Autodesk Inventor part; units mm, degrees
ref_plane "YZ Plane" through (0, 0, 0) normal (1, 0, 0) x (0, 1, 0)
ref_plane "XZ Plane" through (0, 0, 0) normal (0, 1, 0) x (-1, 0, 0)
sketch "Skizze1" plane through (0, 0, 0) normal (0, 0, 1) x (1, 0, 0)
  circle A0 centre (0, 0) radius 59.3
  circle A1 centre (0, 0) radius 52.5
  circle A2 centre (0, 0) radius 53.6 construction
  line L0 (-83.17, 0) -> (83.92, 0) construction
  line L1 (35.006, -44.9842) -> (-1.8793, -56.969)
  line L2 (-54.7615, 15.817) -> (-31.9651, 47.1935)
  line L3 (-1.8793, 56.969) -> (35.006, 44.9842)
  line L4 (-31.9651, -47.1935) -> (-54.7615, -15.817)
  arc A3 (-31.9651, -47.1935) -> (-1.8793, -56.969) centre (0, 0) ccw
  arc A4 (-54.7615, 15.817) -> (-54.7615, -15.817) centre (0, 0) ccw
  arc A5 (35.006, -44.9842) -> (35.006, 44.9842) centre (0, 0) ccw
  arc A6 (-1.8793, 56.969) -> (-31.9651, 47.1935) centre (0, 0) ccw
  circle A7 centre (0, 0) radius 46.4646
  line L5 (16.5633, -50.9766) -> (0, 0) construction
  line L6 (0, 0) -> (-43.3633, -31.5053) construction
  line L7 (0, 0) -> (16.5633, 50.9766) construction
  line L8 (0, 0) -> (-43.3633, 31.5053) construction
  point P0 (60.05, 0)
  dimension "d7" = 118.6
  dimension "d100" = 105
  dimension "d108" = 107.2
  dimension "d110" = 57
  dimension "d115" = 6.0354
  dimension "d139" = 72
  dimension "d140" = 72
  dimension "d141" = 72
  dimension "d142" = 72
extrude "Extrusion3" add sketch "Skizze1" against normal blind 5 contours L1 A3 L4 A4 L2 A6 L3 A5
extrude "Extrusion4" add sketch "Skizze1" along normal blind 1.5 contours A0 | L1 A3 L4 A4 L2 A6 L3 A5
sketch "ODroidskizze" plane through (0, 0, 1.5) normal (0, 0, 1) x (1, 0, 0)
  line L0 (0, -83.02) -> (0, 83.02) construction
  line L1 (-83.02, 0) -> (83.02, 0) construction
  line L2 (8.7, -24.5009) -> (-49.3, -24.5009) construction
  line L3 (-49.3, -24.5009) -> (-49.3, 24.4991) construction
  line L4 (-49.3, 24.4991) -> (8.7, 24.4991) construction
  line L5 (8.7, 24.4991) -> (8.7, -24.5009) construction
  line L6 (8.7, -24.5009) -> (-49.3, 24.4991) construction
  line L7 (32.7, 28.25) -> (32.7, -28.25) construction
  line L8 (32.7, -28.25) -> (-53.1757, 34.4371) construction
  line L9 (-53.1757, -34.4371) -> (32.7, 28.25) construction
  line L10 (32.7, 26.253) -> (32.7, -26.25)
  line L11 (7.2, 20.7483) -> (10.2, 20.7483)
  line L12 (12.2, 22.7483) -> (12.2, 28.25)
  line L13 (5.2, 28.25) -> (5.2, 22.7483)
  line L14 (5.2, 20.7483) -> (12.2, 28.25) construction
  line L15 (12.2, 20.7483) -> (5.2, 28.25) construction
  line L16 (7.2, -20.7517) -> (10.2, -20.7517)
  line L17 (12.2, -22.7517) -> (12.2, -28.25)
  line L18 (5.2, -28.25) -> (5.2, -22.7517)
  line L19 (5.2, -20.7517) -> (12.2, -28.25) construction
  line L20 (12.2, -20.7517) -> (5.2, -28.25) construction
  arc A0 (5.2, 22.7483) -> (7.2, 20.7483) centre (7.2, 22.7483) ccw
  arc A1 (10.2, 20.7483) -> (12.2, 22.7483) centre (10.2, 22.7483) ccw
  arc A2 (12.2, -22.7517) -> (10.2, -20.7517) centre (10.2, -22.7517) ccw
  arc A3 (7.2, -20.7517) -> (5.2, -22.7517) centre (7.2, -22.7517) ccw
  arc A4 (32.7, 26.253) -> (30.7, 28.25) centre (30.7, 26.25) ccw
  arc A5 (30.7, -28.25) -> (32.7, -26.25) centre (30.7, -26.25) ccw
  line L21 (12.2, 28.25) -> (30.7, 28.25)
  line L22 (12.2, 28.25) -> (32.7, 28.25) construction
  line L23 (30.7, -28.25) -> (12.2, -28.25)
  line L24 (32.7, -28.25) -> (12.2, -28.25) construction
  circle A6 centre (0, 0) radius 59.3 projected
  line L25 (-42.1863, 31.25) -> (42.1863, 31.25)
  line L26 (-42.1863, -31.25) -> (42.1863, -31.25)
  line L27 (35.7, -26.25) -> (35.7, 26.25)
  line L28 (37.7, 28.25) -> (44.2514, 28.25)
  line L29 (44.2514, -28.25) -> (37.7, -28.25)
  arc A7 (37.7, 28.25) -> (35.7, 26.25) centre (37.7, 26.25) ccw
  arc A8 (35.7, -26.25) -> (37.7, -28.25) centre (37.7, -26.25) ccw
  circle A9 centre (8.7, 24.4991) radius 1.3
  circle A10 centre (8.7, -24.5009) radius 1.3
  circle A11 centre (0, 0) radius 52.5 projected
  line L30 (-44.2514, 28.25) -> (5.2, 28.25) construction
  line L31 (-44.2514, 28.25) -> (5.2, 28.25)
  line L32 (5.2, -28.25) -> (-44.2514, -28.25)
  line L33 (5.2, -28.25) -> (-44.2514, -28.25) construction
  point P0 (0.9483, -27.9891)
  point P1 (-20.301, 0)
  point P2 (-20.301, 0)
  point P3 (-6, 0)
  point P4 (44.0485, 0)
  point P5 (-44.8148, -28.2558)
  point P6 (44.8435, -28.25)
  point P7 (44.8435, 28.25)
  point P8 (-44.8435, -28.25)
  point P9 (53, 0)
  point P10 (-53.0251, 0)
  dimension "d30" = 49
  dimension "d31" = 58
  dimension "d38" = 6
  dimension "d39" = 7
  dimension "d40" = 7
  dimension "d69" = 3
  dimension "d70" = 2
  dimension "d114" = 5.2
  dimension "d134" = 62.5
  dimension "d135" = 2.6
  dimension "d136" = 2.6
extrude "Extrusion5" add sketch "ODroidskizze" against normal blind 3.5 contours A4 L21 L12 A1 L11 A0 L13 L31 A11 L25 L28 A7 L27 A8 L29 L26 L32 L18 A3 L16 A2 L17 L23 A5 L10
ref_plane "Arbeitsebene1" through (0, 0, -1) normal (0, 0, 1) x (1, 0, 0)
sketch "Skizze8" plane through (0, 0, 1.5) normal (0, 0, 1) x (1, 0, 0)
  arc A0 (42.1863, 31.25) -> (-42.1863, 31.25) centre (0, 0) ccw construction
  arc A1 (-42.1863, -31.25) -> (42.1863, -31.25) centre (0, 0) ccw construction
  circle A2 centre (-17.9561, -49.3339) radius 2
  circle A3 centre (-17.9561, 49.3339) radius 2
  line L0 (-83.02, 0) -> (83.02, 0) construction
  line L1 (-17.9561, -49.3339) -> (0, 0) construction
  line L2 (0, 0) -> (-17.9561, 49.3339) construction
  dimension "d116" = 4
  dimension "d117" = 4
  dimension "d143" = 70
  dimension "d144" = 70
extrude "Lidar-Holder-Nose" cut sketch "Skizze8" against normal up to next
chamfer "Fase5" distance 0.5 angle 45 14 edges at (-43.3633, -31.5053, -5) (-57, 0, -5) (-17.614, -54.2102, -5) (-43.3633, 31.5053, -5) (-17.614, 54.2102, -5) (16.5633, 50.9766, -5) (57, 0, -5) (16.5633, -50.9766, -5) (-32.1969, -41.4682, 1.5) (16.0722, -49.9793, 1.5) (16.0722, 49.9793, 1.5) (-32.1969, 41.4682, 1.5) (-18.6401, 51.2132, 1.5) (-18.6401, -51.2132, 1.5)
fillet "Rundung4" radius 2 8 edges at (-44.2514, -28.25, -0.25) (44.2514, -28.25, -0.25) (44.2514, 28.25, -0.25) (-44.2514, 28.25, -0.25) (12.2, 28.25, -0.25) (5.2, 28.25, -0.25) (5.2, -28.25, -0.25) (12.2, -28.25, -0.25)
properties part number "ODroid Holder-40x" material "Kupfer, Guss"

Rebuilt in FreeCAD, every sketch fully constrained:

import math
import FreeCAD as App
import Part
import Sketcher

V = App.Vector
Q = App.Units.Quantity


def edges_at(feature, points):
    """Names of the edges that pass closest to the given points."""
    edges = feature.Shape.Edges
    near = lambda p: min(range(len(edges)), key=lambda i: edges[i].distToShape(Part.Vertex(*p))[0])
    return sorted({f"Edge{near(p) + 1}" for p in points})

doc = App.newDocument("Part")
body = doc.addObject("PartDesign::Body", "Body")

# Sketch on XY plane
sketch1 = doc.addObject("Sketcher::SketchObject", "Sketch")
body.addObject(sketch1)
sketch1.AttachmentSupport = (doc.XY_Plane, [""])
sketch1.MapMode = "FlatFace"
sketch1.addGeometry([
    Part.LineSegment(V(-1.8793, -56.969, 0), V(35.006, -44.9842, 0)),  # 0
    Part.ArcOfCircle(Part.Circle(V(0, 0, 0), V(0, 0, 1), 56.999985), math.radians(-52.110505), math.radians(52.110505)),  # 1
    Part.LineSegment(V(35.006, 44.9842, 0), V(-1.8793, 56.969, 0)),  # 2
    Part.ArcOfCircle(Part.Circle(V(0, 0, 0), V(0, 0, 1), 56.999948), math.radians(91.889395), math.radians(124.11057)),  # 3
    Part.LineSegment(V(-31.9651, 47.1935, 0), V(-54.7615, 15.817, 0)),  # 4
    Part.ArcOfCircle(Part.Circle(V(0, 0, 0), V(0, 0, 1), 56.999994), math.radians(163.889468), math.radians(196.110532)),  # 5
    Part.LineSegment(V(-54.7615, -15.817, 0), V(-31.9651, -47.1935, 0)),  # 6
    Part.ArcOfCircle(Part.Circle(V(0, 0, 0), V(0, 0, 1), 56.999994), math.radians(-124.11057), math.radians(-91.889395)),  # 7
    Part.Circle(V(0, 0, 0), V(0, 0, 1), 52.5),  # 8
], False)
sketch1.addConstraint([
    Sketcher.Constraint("Coincident", 0, 2, 1, 1),
    Sketcher.Constraint("Coincident", 1, 2, 2, 1),
    Sketcher.Constraint("Coincident", 2, 2, 3, 1),
    Sketcher.Constraint("Coincident", 3, 2, 4, 1),
    Sketcher.Constraint("Coincident", 4, 2, 5, 1),
    Sketcher.Constraint("Coincident", 5, 2, 6, 1),
    Sketcher.Constraint("Coincident", 6, 2, 7, 1),
    Sketcher.Constraint("Coincident", 7, 2, 0, 1),
    Sketcher.Constraint("Coincident", 1, 3, -1, 1),
    Sketcher.Constraint("Coincident", 3, 3, -1, 1),
    Sketcher.Constraint("Coincident", 5, 3, -1, 1),
    Sketcher.Constraint("Coincident", 7, 3, -1, 1),
    Sketcher.Constraint("Coincident", 8, 3, -1, 1),
    Sketcher.Constraint("Equal", 1, 3),
    Sketcher.Constraint("Equal", 3, 5),
    Sketcher.Constraint("Equal", 5, 7),
    Sketcher.Constraint("Vertical", 0, 2, 1, 2),
    Sketcher.Constraint("Vertical", 4, 2, 5, 2),
    Sketcher.Constraint("Vertical", 3, 2, 6, 2),
    Sketcher.Constraint("Vertical", 2, 2, 7, 2),
    Sketcher.Constraint("Equal", 2, 4),
    Sketcher.Constraint("Diameter", 8, 105.0),
    Sketcher.Constraint("Radius", 1, 57.0),
    Sketcher.Constraint("Angle", 0, Q("18 deg")),
    Sketcher.Constraint("Angle", 4, Q("-126 deg")),
    Sketcher.Constraint("DistanceX", -1, 1, 0, 2, 35.006),
])
pad1 = doc.addObject("PartDesign::Pad", "Pad")
body.addObject(pad1)
pad1.Profile = sketch1
pad1.Length = 5
pad1.Reversed = True

# Sketch on XY plane
sketch2 = doc.addObject("Sketcher::SketchObject", "Sketch001")
body.addObject(sketch2)
sketch2.AttachmentSupport = (doc.XY_Plane, [""])
sketch2.MapMode = "FlatFace"
sketch2.addGeometry([
    Part.Circle(V(0, 0, 0), V(0, 0, 1), 59.3),
    Part.Circle(V(0, 0, 0), V(0, 0, 1), 52.5),
], False)
sketch2.addConstraint([
    Sketcher.Constraint("Coincident", 0, 3, -1, 1),
    Sketcher.Constraint("Coincident", 1, 3, -1, 1),
    Sketcher.Constraint("Diameter", 1, 105.0),
    Sketcher.Constraint("Diameter", 0, 118.6),
])
pad2 = doc.addObject("PartDesign::Pad", "Pad001")
body.addObject(pad2)
pad2.Profile = sketch2
pad2.Length = 1.5

# Sketch on XY plane
sketch3 = doc.addObject("Sketcher::SketchObject", "Sketch002")
body.addObject(sketch3)
sketch3.AttachmentSupport = (doc.XY_Plane, [""])
sketch3.MapMode = "FlatFace"
sketch3.AttachmentOffset = App.Placement(V(0, 0, 1.5), App.Rotation())
sketch3.addGeometry([
    Part.ArcOfCircle(Part.Circle(V(30.7, 26.25, 0), V(0, 0, 1), 2.000002), math.radians(0.085944), math.radians(90)),  # 0
    Part.LineSegment(V(32.7, 26.253, 0), V(32.7, -26.25, 0)),  # 1
    Part.ArcOfCircle(Part.Circle(V(30.7, -26.25, 0), V(0, 0, 1), 2), math.radians(-90), math.radians(0)),  # 2
    Part.LineSegment(V(30.7, -28.25, 0), V(12.2, -28.25, 0)),  # 3
    Part.LineSegment(V(12.2, -28.25, 0), V(12.2, -22.7517, 0)),  # 4
    Part.ArcOfCircle(Part.Circle(V(10.2, -22.7517, 0), V(0, 0, 1), 2), math.radians(0), math.radians(90)),  # 5
    Part.LineSegment(V(10.2, -20.7517, 0), V(7.2, -20.7517, 0)),  # 6
    Part.ArcOfCircle(Part.Circle(V(7.2, -22.7517, 0), V(0, 0, 1), 2), math.radians(90), math.radians(180)),  # 7
    Part.LineSegment(V(5.2, -22.7517, 0), V(5.2, -28.25, 0)),  # 8
    Part.LineSegment(V(5.2, -28.25, 0), V(-44.2514, -28.25, 0)),  # 9
    Part.ArcOfCircle(Part.Circle(V(0, 0, 0), V(0, 0, 1), 52.5), math.radians(-147.445925), math.radians(-143.470365)),  # 10
    Part.LineSegment(V(-42.1863, -31.25, 0), V(42.1863, -31.25, 0)),  # 11
    Part.ArcOfCircle(Part.Circle(V(0, 0, 0), V(0, 0, 1), 52.5), math.radians(-36.529635), math.radians(-32.554075)),  # 12
    Part.LineSegment(V(44.2514, -28.25, 0), V(37.7, -28.25, 0)),  # 13
    Part.ArcOfCircle(Part.Circle(V(37.7, -26.25, 0), V(0, 0, 1), 2), math.radians(180), math.radians(270)),  # 14
    Part.LineSegment(V(35.7, -26.25, 0), V(35.7, 26.25, 0)),  # 15
    Part.ArcOfCircle(Part.Circle(V(37.7, 26.25, 0), V(0, 0, 1), 2), math.radians(90), math.radians(180)),  # 16
    Part.LineSegment(V(37.7, 28.25, 0), V(44.2514, 28.25, 0)),  # 17
    Part.ArcOfCircle(Part.Circle(V(0, 0, 0), V(0, 0, 1), 52.5), math.radians(32.554075), math.radians(36.529635)),  # 18
    Part.LineSegment(V(42.1863, 31.25, 0), V(-42.1863, 31.25, 0)),  # 19
    Part.ArcOfCircle(Part.Circle(V(0, 0, 0), V(0, 0, 1), 52.5), math.radians(143.470365), math.radians(147.445925)),  # 20
    Part.LineSegment(V(-44.2514, 28.25, 0), V(5.2, 28.25, 0)),  # 21
    Part.LineSegment(V(5.2, 28.25, 0), V(5.2, 22.7483, 0)),  # 22
    Part.ArcOfCircle(Part.Circle(V(7.2, 22.7483, 0), V(0, 0, 1), 2), math.radians(180), math.radians(270)),  # 23
    Part.LineSegment(V(7.2, 20.7483, 0), V(10.2, 20.7483, 0)),  # 24
    Part.ArcOfCircle(Part.Circle(V(10.2, 22.7483, 0), V(0, 0, 1), 2), math.radians(-90), math.radians(0)),  # 25
    Part.LineSegment(V(12.2, 22.7483, 0), V(12.2, 28.25, 0)),  # 26
    Part.LineSegment(V(12.2, 28.25, 0), V(30.7, 28.25, 0)),  # 27
    Part.Circle(V(8.7, -24.5009, 0), V(0, 0, 1), 1.3),  # 28
    Part.Circle(V(8.7, 24.4991, 0), V(0, 0, 1), 1.3),  # 29
], False)
sketch3.addConstraint([
    Sketcher.Constraint("Coincident", 0, 1, 1, 1),
    Sketcher.Constraint("Tangent", 1, 2, 2, 2),
    Sketcher.Constraint("Tangent", 2, 1, 3, 1),
    Sketcher.Constraint("Coincident", 3, 2, 4, 1),
    Sketcher.Constraint("Tangent", 4, 2, 5, 1),
    Sketcher.Constraint("Tangent", 5, 2, 6, 1),
    Sketcher.Constraint("Tangent", 6, 2, 7, 1),
    Sketcher.Constraint("Tangent", 7, 2, 8, 1),
    Sketcher.Constraint("Coincident", 8, 2, 9, 1),
    Sketcher.Constraint("Coincident", 9, 2, 10, 1),
    Sketcher.Constraint("Coincident", 10, 2, 11, 1),
    Sketcher.Constraint("Coincident", 11, 2, 12, 1),
    Sketcher.Constraint("Coincident", 12, 2, 13, 1),
    Sketcher.Constraint("Tangent", 13, 2, 14, 2),
    Sketcher.Constraint("Tangent", 14, 1, 15, 1),
    Sketcher.Constraint("Tangent", 15, 2, 16, 2),
    Sketcher.Constraint("Tangent", 16, 1, 17, 1),
    Sketcher.Constraint("Coincident", 17, 2, 18, 1),
    Sketcher.Constraint("Coincident", 18, 2, 19, 1),
    Sketcher.Constraint("Coincident", 19, 2, 20, 1),
    Sketcher.Constraint("Coincident", 20, 2, 21, 1),
    Sketcher.Constraint("Coincident", 21, 2, 22, 1),
    Sketcher.Constraint("Tangent", 22, 2, 23, 1),
    Sketcher.Constraint("Tangent", 23, 2, 24, 1),
    Sketcher.Constraint("Tangent", 24, 2, 25, 1),
    Sketcher.Constraint("Tangent", 25, 2, 26, 1),
    Sketcher.Constraint("Coincident", 26, 2, 27, 1),
    Sketcher.Constraint("Tangent", 27, 2, 0, 2),
    Sketcher.Constraint("Vertical", 1),
    Sketcher.Constraint("Horizontal", 3),
    Sketcher.Constraint("Vertical", 4),
    Sketcher.Constraint("Horizontal", 6),
    Sketcher.Constraint("Vertical", 8),
    Sketcher.Constraint("Horizontal", 9),
    Sketcher.Constraint("Horizontal", 11),
    Sketcher.Constraint("Horizontal", 13),
    Sketcher.Constraint("Vertical", 15),
    Sketcher.Constraint("Horizontal", 17),
    Sketcher.Constraint("Horizontal", 19),
    Sketcher.Constraint("Horizontal", 21),
    Sketcher.Constraint("Vertical", 22),
    Sketcher.Constraint("Horizontal", 24),
    Sketcher.Constraint("Vertical", 26),
    Sketcher.Constraint("Horizontal", 27),
    Sketcher.Constraint("Coincident", 10, 3, -1, 1),
    Sketcher.Constraint("Coincident", 12, 3, -1, 1),
    Sketcher.Constraint("Coincident", 18, 3, -1, 1),
    Sketcher.Constraint("Coincident", 20, 3, -1, 1),
    Sketcher.Constraint("Equal", 0, 2),
    Sketcher.Constraint("Equal", 2, 5),
    Sketcher.Constraint("Equal", 5, 7),
    Sketcher.Constraint("Equal", 10, 12),
    Sketcher.Constraint("Equal", 7, 14),
    Sketcher.Constraint("Equal", 14, 16),
    Sketcher.Constraint("Equal", 12, 18),
    Sketcher.Constraint("Equal", 18, 20),
    Sketcher.Constraint("Equal", 16, 23),
    Sketcher.Constraint("Equal", 23, 25),
    Sketcher.Constraint("Equal", 28, 29),
    Sketcher.Constraint("Symmetric", 8, 2, 21, 2, -1),
    Sketcher.Constraint("Symmetric", 3, 2, 26, 2, -1),
    Sketcher.Constraint("Horizontal", 2, 3, 14, 3),
    Sketcher.Constraint("Horizontal", 0, 3, 16, 3),
    Sketcher.Constraint("Horizontal", 3, 2, 8, 2),
    Sketcher.Constraint("Vertical", 28, 3, 29, 3),
    Sketcher.Constraint("Vertical", 11, 2, 18, 2),
    Sketcher.Constraint("Radius", 0, 2.0),
    Sketcher.Constraint("Diameter", 28, 2.6),
    Sketcher.Constraint("DistanceX", 6, 2, 6, 1, 3.0),
    Sketcher.Constraint("DistanceX", 2, 3, 14, 3, 7.0),
    Sketcher.Constraint("DistanceY", 10, 2, 9, 2, 3.0),
    Sketcher.Constraint("DistanceX", -1, 1, 7, 2, 5.2),
    Sketcher.Constraint("Radius", 10, 52.5),
    Sketcher.Constraint("DistanceX", 3, 2, 3, 1, 18.5),
    Sketcher.Constraint("DistanceY", 15, 1, 15, 2, 52.5),
    Sketcher.Constraint("DistanceX", 28, 3, 2, 3, 22.0),
    Sketcher.Constraint("DistanceY", 1, 2, 1, 1, 52.503),
    Sketcher.Constraint("DistanceY", 4, 1, 4, 2, 5.4983),
    Sketcher.Constraint("DistanceY", 22, 2, 22, 1, 5.5017),
    Sketcher.Constraint("DistanceY", 28, 3, -1, 1, 24.501),
    Sketcher.Constraint("DistanceY", -1, 1, 29, 3, 24.499),
])
pad3 = doc.addObject("PartDesign::Pad", "Pad002")
body.addObject(pad3)
pad3.Profile = sketch3
pad3.Length = 3.5
pad3.Reversed = True

# Sketch on XY plane
sketch4 = doc.addObject("Sketcher::SketchObject", "Sketch003")
body.addObject(sketch4)
sketch4.AttachmentSupport = (doc.XY_Plane, [""])
sketch4.MapMode = "FlatFace"
sketch4.AttachmentOffset = App.Placement(V(0, 0, 1.5), App.Rotation())
sketch4.addGeometry([
    Part.Circle(V(-17.9561, -49.3339, 0), V(0, 0, 1), 2),
    Part.Circle(V(-17.9561, 49.3339, 0), V(0, 0, 1), 2),
], False)
sketch4.addConstraint([
    Sketcher.Constraint("Equal", 0, 1),
    Sketcher.Constraint("Symmetric", 0, 3, 1, 3, -1),
    Sketcher.Constraint("Diameter", 0, 4.0),
    Sketcher.Constraint("DistanceX", 0, 3, -1, 1, 17.956),
    Sketcher.Constraint("DistanceY", 0, 3, -1, 1, 49.334),
])
pocket1 = doc.addObject("PartDesign::Pocket", "Pocket")
body.addObject(pocket1)
pocket1.Profile = sketch4
pocket1.Length = 6.5
doc.recompute()

chamfer = doc.addObject("PartDesign::Chamfer", "Chamfer")
body.addObject(chamfer)
chamfer.Base = (pocket1, edges_at(pocket1, [
    (-43.363, -31.505, -5),
    (-57, 0, -5),
    (-17.614, -54.21, -5),
    (-43.363, 31.505, -5),
    (-17.614, 54.21, -5),
    (16.563, 50.977, -5),
    (57, 0, -5),
    (16.563, -50.977, -5),
    (-32.197, -41.468, 1.5),
    (16.072, -49.979, 1.5),
    (16.072, 49.979, 1.5),
    (-32.197, 41.468, 1.5),
    (-18.64, 51.213, 1.5),
    (-18.64, -51.213, 1.5),
]))
chamfer.Size = 0.5
doc.recompute()

fillet = doc.addObject("PartDesign::Fillet", "Fillet")
body.addObject(fillet)
fillet.Base = (chamfer, edges_at(chamfer, [
    (-44.251, -28.25, -0.25),
    (44.251, -28.25, -0.25),
    (44.251, 28.25, -0.25),
    (-44.251, 28.25, -0.25),
    (12.2, 28.25, -0.25),
    (5.2, 28.25, -0.25),
    (5.2, -28.25, -0.25),
    (12.2, -28.25, -0.25),
]))
fillet.Radius = 2

doc.recompute()
